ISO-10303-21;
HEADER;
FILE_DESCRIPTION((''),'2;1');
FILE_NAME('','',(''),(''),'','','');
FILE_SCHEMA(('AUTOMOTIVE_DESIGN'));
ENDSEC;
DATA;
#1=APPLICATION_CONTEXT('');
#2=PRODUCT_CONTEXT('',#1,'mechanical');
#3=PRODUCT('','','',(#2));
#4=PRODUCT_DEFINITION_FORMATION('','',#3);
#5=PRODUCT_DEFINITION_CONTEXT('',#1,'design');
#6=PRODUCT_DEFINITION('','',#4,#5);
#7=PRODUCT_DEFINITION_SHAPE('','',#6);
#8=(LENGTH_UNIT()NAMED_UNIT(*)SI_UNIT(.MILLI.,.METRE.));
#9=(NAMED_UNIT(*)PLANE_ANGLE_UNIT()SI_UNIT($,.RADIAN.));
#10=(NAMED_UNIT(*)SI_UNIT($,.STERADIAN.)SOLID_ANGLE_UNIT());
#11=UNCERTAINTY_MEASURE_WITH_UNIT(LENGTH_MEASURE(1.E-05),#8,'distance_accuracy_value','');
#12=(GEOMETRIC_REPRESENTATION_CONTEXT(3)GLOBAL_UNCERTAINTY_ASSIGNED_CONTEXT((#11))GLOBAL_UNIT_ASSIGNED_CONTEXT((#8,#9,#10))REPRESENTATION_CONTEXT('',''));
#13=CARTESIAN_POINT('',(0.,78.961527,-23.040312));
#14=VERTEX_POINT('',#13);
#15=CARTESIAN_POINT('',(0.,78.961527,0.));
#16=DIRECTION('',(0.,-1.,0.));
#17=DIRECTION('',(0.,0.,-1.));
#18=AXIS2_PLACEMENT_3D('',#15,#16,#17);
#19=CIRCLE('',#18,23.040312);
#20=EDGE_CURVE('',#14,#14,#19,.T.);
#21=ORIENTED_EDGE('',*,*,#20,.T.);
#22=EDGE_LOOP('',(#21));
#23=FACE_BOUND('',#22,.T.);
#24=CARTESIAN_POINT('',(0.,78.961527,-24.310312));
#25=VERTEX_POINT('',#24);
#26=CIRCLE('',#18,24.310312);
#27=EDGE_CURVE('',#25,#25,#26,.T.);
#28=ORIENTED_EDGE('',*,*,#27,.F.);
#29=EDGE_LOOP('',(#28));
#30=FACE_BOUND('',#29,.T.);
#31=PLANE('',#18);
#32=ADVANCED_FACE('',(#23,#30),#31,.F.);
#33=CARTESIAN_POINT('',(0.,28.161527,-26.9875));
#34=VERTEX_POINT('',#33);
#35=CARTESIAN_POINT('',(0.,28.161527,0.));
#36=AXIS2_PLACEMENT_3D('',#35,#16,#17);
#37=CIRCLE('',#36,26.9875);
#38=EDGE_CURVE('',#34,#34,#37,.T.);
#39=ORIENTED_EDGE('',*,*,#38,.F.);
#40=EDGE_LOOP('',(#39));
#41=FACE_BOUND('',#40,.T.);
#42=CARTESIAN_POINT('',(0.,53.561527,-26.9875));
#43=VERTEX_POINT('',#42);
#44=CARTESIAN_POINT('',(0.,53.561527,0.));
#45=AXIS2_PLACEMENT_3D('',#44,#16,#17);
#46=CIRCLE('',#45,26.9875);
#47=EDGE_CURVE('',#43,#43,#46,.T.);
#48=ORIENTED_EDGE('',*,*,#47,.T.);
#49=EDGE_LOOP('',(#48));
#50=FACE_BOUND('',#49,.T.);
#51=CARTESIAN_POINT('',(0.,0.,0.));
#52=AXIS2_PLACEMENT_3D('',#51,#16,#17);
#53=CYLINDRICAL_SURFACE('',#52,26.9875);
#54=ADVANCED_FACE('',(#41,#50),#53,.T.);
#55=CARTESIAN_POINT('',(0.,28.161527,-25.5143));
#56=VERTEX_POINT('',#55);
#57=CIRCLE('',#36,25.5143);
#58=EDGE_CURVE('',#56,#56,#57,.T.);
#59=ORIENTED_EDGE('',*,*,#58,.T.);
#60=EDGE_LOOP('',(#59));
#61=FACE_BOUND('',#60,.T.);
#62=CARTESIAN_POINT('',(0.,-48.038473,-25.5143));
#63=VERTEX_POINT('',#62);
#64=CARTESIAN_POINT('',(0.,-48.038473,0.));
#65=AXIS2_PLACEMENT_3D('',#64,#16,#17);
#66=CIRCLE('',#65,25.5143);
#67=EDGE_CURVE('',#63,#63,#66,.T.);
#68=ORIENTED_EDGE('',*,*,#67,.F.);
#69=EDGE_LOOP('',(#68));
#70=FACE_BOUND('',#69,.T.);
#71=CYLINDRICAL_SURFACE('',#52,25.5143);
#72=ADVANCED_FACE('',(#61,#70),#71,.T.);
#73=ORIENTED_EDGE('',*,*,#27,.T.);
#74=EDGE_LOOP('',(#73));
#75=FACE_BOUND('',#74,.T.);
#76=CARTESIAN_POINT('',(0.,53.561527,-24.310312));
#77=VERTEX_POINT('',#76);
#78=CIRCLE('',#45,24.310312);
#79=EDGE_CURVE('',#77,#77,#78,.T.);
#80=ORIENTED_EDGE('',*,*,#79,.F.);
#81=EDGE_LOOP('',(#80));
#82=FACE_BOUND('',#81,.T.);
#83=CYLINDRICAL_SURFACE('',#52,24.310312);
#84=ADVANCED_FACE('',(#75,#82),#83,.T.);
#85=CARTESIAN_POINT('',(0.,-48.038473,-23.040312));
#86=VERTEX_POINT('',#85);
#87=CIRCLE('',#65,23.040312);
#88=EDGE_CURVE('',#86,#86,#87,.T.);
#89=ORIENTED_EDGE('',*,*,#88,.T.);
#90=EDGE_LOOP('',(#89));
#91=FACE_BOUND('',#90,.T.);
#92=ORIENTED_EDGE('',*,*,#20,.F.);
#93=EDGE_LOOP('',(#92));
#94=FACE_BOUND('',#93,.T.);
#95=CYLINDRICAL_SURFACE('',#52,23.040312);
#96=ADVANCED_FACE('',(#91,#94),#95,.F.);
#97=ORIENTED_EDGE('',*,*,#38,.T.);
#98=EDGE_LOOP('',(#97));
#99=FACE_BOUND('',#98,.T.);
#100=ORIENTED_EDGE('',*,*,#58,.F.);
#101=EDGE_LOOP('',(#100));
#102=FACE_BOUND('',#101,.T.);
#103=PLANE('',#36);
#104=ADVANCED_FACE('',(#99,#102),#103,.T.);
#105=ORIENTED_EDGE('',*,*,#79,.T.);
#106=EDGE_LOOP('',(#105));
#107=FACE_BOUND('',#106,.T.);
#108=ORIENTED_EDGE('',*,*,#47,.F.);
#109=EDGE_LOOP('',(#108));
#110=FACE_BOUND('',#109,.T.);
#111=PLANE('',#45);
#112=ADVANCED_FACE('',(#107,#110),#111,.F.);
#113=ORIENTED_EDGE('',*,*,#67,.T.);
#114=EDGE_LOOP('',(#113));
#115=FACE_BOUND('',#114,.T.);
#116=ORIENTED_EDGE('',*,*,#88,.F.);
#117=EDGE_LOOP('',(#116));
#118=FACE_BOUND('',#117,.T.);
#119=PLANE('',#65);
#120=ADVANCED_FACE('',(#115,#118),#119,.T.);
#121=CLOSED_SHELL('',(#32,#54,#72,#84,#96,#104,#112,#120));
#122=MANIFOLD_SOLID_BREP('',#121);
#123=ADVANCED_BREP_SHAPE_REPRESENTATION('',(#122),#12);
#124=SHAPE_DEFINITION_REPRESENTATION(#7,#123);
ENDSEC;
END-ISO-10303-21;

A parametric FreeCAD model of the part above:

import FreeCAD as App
import Part
import Sketcher
from FreeCAD import Vector
Q = App.Units.Quantity

doc = App.newDocument("Part")
body = doc.addObject("PartDesign::Body", "Body")

# Sketch on XY plane
sketch1 = body.newObject("Sketcher::SketchObject", "Sketch")
sketch1.AttachmentSupport = (doc.getObject("XY_Plane"), [""])
sketch1.MapMode = "FlatFace"
sketch1.addGeometry([
    Part.LineSegment(Vector(23.040312, 78.961527, 0), Vector(23.040312, -48.038473, 0)),  # 0
    Part.LineSegment(Vector(23.040312, -48.038473, 0), Vector(25.5143, -48.038473, 0)),  # 1
    Part.LineSegment(Vector(25.5143, -48.038473, 0), Vector(25.5143, 28.161527, 0)),  # 2
    Part.LineSegment(Vector(25.5143, 28.161527, 0), Vector(26.9875, 28.161527, 0)),  # 3
    Part.LineSegment(Vector(26.9875, 28.161527, 0), Vector(26.9875, 53.561527, 0)),  # 4
    Part.LineSegment(Vector(26.9875, 53.561527, 0), Vector(24.310312, 53.561527, 0)),  # 5
    Part.LineSegment(Vector(24.310312, 53.561527, 0), Vector(24.310312, 78.961527, 0)),  # 6
    Part.LineSegment(Vector(24.310312, 78.961527, 0), Vector(23.040312, 78.961527, 0)),  # 7
], False)
sketch1.addConstraint([
    Sketcher.Constraint("Coincident", 0, 2, 1, 1),
    Sketcher.Constraint("Coincident", 1, 2, 2, 1),
    Sketcher.Constraint("Coincident", 2, 2, 3, 1),
    Sketcher.Constraint("Coincident", 3, 2, 4, 1),
    Sketcher.Constraint("Coincident", 4, 2, 5, 1),
    Sketcher.Constraint("Coincident", 5, 2, 6, 1),
    Sketcher.Constraint("Coincident", 6, 2, 7, 1),
    Sketcher.Constraint("Coincident", 7, 2, 0, 1),
    Sketcher.Constraint("Vertical", 0),
    Sketcher.Constraint("Horizontal", 1),
    Sketcher.Constraint("Vertical", 2),
    Sketcher.Constraint("Horizontal", 3),
    Sketcher.Constraint("Vertical", 4),
    Sketcher.Constraint("Horizontal", 5),
    Sketcher.Constraint("Vertical", 6),
    Sketcher.Constraint("Horizontal", 7),
    Sketcher.Constraint("Equal", 4, 6),
    Sketcher.Constraint("DistanceY", 0, 2, 0, 1, Q("5 in")),
    Sketcher.Constraint("DistanceY", 2, 1, 2, 2, Q("3 in")),
    Sketcher.Constraint("DistanceX", 7, 2, 7, 1, Q("0.05 in")),
    Sketcher.Constraint("DistanceX", 3, 1, 3, 2, Q("0.058 in")),
    Sketcher.Constraint("DistanceX", -1, 1, 3, 2, Q("1.0625 in")),
    Sketcher.Constraint("DistanceX", 1, 1, 1, 2, Q("2.473988 mm")),
    Sketcher.Constraint("DistanceY", 0, 2, -1, 1, Q("48.038473 mm")),
])
revolution = body.newObject("PartDesign::Revolution", "Revolution")
revolution.Profile = sketch1
revolution.ReferenceAxis = (sketch1, ["V_Axis"])
revolution.Angle = 360

doc.recompute()
